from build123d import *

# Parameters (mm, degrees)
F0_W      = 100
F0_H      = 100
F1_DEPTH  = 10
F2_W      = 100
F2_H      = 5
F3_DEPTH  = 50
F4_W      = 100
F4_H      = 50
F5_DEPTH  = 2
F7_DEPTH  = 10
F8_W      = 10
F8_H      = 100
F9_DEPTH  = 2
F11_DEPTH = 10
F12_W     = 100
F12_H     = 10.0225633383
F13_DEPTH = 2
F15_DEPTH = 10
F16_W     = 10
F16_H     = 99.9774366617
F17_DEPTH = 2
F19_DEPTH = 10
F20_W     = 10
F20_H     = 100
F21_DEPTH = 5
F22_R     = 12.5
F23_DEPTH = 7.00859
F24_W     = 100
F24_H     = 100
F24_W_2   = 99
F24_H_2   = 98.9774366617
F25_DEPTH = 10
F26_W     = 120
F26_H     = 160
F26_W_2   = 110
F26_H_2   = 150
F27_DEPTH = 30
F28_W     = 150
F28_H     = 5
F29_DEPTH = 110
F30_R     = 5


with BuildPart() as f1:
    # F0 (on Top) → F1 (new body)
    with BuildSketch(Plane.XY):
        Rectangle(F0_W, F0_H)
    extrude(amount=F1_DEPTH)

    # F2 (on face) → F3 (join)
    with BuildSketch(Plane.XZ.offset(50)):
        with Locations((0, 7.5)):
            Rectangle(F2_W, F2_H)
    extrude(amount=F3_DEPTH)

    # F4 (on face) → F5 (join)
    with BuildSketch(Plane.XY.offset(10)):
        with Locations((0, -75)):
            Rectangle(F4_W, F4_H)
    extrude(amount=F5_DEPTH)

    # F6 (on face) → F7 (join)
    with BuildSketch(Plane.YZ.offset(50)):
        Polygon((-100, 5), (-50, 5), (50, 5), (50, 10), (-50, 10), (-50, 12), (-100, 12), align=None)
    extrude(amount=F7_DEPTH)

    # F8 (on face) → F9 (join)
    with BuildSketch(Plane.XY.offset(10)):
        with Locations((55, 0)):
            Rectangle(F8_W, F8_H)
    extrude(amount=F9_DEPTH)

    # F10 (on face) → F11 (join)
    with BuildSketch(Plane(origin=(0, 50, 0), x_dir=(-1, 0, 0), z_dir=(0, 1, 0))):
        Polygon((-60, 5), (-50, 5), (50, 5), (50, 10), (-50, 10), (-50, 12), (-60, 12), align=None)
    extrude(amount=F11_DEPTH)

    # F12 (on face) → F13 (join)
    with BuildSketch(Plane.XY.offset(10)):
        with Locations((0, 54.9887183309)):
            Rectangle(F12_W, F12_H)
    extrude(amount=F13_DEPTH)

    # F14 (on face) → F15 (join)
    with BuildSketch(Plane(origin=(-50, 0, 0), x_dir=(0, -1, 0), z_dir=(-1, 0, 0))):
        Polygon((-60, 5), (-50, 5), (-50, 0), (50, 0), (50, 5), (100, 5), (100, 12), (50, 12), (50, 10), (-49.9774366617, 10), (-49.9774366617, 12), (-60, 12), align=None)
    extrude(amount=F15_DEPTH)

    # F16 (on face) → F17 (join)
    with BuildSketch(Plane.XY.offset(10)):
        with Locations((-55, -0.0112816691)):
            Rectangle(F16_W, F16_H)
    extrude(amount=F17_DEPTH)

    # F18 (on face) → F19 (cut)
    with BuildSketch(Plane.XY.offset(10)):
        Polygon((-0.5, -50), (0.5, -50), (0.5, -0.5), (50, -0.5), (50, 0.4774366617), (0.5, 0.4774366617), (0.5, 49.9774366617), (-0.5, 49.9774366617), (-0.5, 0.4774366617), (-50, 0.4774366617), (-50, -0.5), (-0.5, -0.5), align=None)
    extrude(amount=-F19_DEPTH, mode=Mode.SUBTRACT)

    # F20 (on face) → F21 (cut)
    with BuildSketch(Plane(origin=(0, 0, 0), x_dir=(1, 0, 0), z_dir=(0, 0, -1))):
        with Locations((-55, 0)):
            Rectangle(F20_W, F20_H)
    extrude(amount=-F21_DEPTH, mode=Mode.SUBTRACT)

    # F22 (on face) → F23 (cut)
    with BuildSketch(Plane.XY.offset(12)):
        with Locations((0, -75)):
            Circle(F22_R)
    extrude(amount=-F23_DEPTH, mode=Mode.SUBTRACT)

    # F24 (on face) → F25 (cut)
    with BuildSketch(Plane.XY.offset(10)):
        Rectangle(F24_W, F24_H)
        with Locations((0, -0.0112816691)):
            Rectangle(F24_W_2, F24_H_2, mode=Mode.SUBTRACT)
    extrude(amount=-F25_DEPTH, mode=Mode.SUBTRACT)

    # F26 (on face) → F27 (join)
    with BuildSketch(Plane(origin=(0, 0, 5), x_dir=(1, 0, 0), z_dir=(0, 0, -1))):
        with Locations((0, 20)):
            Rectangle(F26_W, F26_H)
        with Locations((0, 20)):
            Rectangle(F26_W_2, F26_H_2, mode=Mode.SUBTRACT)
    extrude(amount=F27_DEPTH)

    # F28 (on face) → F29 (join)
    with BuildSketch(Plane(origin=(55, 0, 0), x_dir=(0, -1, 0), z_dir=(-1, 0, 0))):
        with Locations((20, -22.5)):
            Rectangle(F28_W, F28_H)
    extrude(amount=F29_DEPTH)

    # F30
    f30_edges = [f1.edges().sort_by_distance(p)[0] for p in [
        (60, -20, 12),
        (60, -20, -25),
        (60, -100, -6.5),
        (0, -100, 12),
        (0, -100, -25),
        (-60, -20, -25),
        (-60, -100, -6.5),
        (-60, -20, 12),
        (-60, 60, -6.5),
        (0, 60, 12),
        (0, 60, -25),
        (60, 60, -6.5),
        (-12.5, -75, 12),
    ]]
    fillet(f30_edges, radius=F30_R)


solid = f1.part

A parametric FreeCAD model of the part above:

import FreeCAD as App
import Part
import Sketcher
from FreeCAD import Vector


def edges_at(feature, points):
    """Names of the edges that pass closest to the given points."""
    edges = feature.Shape.Edges
    near = lambda p: min(range(len(edges)), key=lambda i: edges[i].distToShape(Part.Vertex(*p))[0])
    return sorted({f"Edge{near(p) + 1}" for p in points})


def add_polygon(sketch, points):
    """Adds a closed chain of lines whose ends are joined by coincident constraints."""
    first, n = sketch.GeometryCount, len(points)
    for a, b in zip(points, points[1:] + points[:1]):
        sketch.addGeometry(Part.LineSegment(App.Vector(*a, 0), App.Vector(*b, 0)), False)
    for i in range(n):
        sketch.addConstraint(Sketcher.Constraint("Coincident", first + i, 2, first + (i + 1) % n, 1))

doc = App.newDocument("Part")
body = doc.addObject("PartDesign::Body", "Body")
body.AllowCompound = True

# Sketch on XY plane
sketch1 = doc.addObject("Sketcher::SketchObject", "Sketch")
body.addObject(sketch1)
sketch1.AttachmentSupport = (doc.XY_Plane, [""])
sketch1.MapMode = "FlatFace"
add_polygon(sketch1, [(-50, 50), (-50, -50), (50, -50), (50, 50)])  # lines 0-3
sketch1.addConstraint([
    Sketcher.Constraint("Vertical", 0),
    Sketcher.Constraint("Horizontal", 1),
    Sketcher.Constraint("Vertical", 2),
    Sketcher.Constraint("Horizontal", 3),
    Sketcher.Constraint("Symmetric", 0, 2, 2, 2, -1, 1),
    Sketcher.Constraint("Equal", 3, 0),
    Sketcher.Constraint("DistanceX", 1, 1, 1, 2, 100.0),
])
pad1 = doc.addObject("PartDesign::Pad", "Pad")
body.addObject(pad1)
pad1.Profile = sketch1
pad1.Length = 10

# Sketch on XZ plane
sketch2 = doc.addObject("Sketcher::SketchObject", "Sketch001")
body.addObject(sketch2)
sketch2.AttachmentSupport = (doc.XZ_Plane, [""])
sketch2.MapMode = "FlatFace"
sketch2.AttachmentOffset = App.Placement(Vector(0, 0, 50), App.Rotation())
add_polygon(sketch2, [(-50, 10), (-50, 5), (50, 5), (50, 10)])  # lines 0-3
sketch2.addConstraint([
    Sketcher.Constraint("Vertical", 0),
    Sketcher.Constraint("Horizontal", 1),
    Sketcher.Constraint("Vertical", 2),
    Sketcher.Constraint("Horizontal", 3),
    Sketcher.Constraint("DistanceX", 1, 1, 1, 2, 100.0),
    Sketcher.Constraint("DistanceY", 0, 2, 0, 1, 5.0),
    Sketcher.Constraint("DistanceX", 0, 2, -1, 1, 50.0),
    Sketcher.Constraint("DistanceY", -1, 1, 0, 2, 5.0),
])
pad2 = doc.addObject("PartDesign::Pad", "Pad001")
body.addObject(pad2)
pad2.Profile = sketch2
pad2.Length = 50

# Sketch on XY plane
sketch3 = doc.addObject("Sketcher::SketchObject", "Sketch002")
body.addObject(sketch3)
sketch3.AttachmentSupport = (doc.XY_Plane, [""])
sketch3.MapMode = "FlatFace"
sketch3.AttachmentOffset = App.Placement(Vector(0, 0, 10), App.Rotation())
add_polygon(sketch3, [(-50, -50), (-50, -100), (50, -100), (50, -50)])  # lines 0-3
sketch3.addConstraint([
    Sketcher.Constraint("Vertical", 0),
    Sketcher.Constraint("Horizontal", 1),
    Sketcher.Constraint("Vertical", 2),
    Sketcher.Constraint("Horizontal", 3),
    Sketcher.Constraint("DistanceX", 1, 1, 1, 2, 100.0),
    Sketcher.Constraint("DistanceY", 0, 2, 0, 1, 50.0),
    Sketcher.Constraint("DistanceX", 0, 2, -1, 1, 50.0),
    Sketcher.Constraint("DistanceY", 0, 2, -1, 1, 100.0),
])
pad3 = doc.addObject("PartDesign::Pad", "Pad002")
body.addObject(pad3)
pad3.Profile = sketch3
pad3.Length = 2

# Sketch on YZ plane
sketch4 = doc.addObject("Sketcher::SketchObject", "Sketch003")
body.addObject(sketch4)
sketch4.AttachmentSupport = (doc.YZ_Plane, [""])
sketch4.MapMode = "FlatFace"
sketch4.AttachmentOffset = App.Placement(Vector(0, 0, 50), App.Rotation())
add_polygon(sketch4, [(-100, 5), (50, 5), (50, 10), (-50, 10), (-50, 12), (-100, 12)])  # lines 0-5
sketch4.addConstraint([
    Sketcher.Constraint("Horizontal", 0),
    Sketcher.Constraint("Vertical", 1),
    Sketcher.Constraint("Horizontal", 2),
    Sketcher.Constraint("Vertical", 3),
    Sketcher.Constraint("Horizontal", 4),
    Sketcher.Constraint("Vertical", 5),
    Sketcher.Constraint("DistanceX", 0, 1, 0, 2, 150.0),
    Sketcher.Constraint("DistanceX", 2, 2, 2, 1, 100.0),
    Sketcher.Constraint("DistanceY", 1, 1, 1, 2, 5.0),
    Sketcher.Constraint("DistanceY", 3, 1, 3, 2, 2.0),
    Sketcher.Constraint("DistanceX", -1, 1, 0, 2, 50.0),
    Sketcher.Constraint("DistanceY", -1, 1, 0, 2, 5.0),
])
pad4 = doc.addObject("PartDesign::Pad", "Pad003")
body.addObject(pad4)
pad4.Profile = sketch4
pad4.Length = 10

# Sketch on XY plane
sketch5 = doc.addObject("Sketcher::SketchObject", "Sketch004")
body.addObject(sketch5)
sketch5.AttachmentSupport = (doc.XY_Plane, [""])
sketch5.MapMode = "FlatFace"
sketch5.AttachmentOffset = App.Placement(Vector(0, 0, 10), App.Rotation())
add_polygon(sketch5, [(50, 50), (50, -50), (60, -50), (60, 50)])  # lines 0-3
sketch5.addConstraint([
    Sketcher.Constraint("Vertical", 0),
    Sketcher.Constraint("Horizontal", 1),
    Sketcher.Constraint("Vertical", 2),
    Sketcher.Constraint("Horizontal", 3),
    Sketcher.Constraint("DistanceX", 1, 1, 1, 2, 10.0),
    Sketcher.Constraint("DistanceY", 0, 2, 0, 1, 100.0),
    Sketcher.Constraint("DistanceX", -1, 1, 0, 2, 50.0),
    Sketcher.Constraint("DistanceY", 0, 2, -1, 1, 50.0),
])
pad5 = doc.addObject("PartDesign::Pad", "Pad004")
body.addObject(pad5)
pad5.Profile = sketch5
pad5.Length = 2

# Sketch on XZ plane
sketch6 = doc.addObject("Sketcher::SketchObject", "Sketch005")
body.addObject(sketch6)
sketch6.AttachmentSupport = (doc.XZ_Plane, [""])
sketch6.MapMode = "FlatFace"
sketch6.AttachmentOffset = App.Placement(Vector(0, 0, -50), App.Rotation())
add_polygon(sketch6, [(60, 5), (-50, 5), (-50, 10), (50, 10), (50, 12), (60, 12)])  # lines 0-5
sketch6.addConstraint([
    Sketcher.Constraint("Horizontal", 0),
    Sketcher.Constraint("Vertical", 1),
    Sketcher.Constraint("Horizontal", 2),
    Sketcher.Constraint("Vertical", 3),
    Sketcher.Constraint("Horizontal", 4),
    Sketcher.Constraint("Vertical", 5),
    Sketcher.Constraint("DistanceX", 0, 2, 0, 1, 110.0),
    Sketcher.Constraint("DistanceX", 2, 1, 2, 2, 100.0),
    Sketcher.Constraint("DistanceY", 1, 1, 1, 2, 5.0),
    Sketcher.Constraint("DistanceY", 3, 1, 3, 2, 2.0),
    Sketcher.Constraint("DistanceX", 0, 2, -1, 1, 50.0),
    Sketcher.Constraint("DistanceY", -1, 1, 0, 2, 5.0),
])
pad6 = doc.addObject("PartDesign::Pad", "Pad005")
body.addObject(pad6)
pad6.Profile = sketch6
pad6.Length = 10
pad6.Reversed = True

# Sketch on XY plane
sketch7 = doc.addObject("Sketcher::SketchObject", "Sketch006")
body.addObject(sketch7)
sketch7.AttachmentSupport = (doc.XY_Plane, [""])
sketch7.MapMode = "FlatFace"
sketch7.AttachmentOffset = App.Placement(Vector(0, 0, 10), App.Rotation())
add_polygon(sketch7, [(-50, 60), (-50, 50), (50, 50), (50, 60)])  # lines 0-3
sketch7.addConstraint([
    Sketcher.Constraint("Vertical", 0),
    Sketcher.Constraint("Horizontal", 1),
    Sketcher.Constraint("Vertical", 2),
    Sketcher.Constraint("Horizontal", 3),
    Sketcher.Constraint("DistanceX", 1, 1, 1, 2, 100.0),
    Sketcher.Constraint("DistanceX", 0, 2, -1, 1, 50.0),
    Sketcher.Constraint("DistanceY", -1, 1, 2, 2, 60.0),
    Sketcher.Constraint("DistanceY", 0, 2, 0, 1, 10.022563),
])
pad7 = doc.addObject("PartDesign::Pad", "Pad006")
body.addObject(pad7)
pad7.Profile = sketch7
pad7.Length = 2

# Sketch on YZ plane
sketch8 = doc.addObject("Sketcher::SketchObject", "Sketch007")
body.addObject(sketch8)
sketch8.AttachmentSupport = (doc.YZ_Plane, [""])
sketch8.MapMode = "FlatFace"
sketch8.AttachmentOffset = App.Placement(Vector(0, 0, -50), App.Rotation())
add_polygon(sketch8, [(60, 5), (50, 5), (50, 0), (-50, 0), (-50, 5), (-100, 5), (-100, 12), (-50, 12), (-50, 10), (50, 10), (50, 12), (60, 12)])  # lines 0-11
sketch8.addConstraint([
    Sketcher.Constraint("Horizontal", 0),
    Sketcher.Constraint("Vertical", 1),
    Sketcher.Constraint("Horizontal", 2),
    Sketcher.Constraint("Vertical", 3),
    Sketcher.Constraint("Horizontal", 4),
    Sketcher.Constraint("Vertical", 5),
    Sketcher.Constraint("Horizontal", 6),
    Sketcher.Constraint("Vertical", 7),
    Sketcher.Constraint("Horizontal", 8),
    Sketcher.Constraint("Vertical", 9),
    Sketcher.Constraint("Horizontal", 10),
    Sketcher.Constraint("Vertical", 11),
    Sketcher.Constraint("Symmetric", 1, 2, 2, 2, -1, 1),
    Sketcher.Constraint("Horizontal", 0, 2, 3, 2),
    Sketcher.Constraint("Horizontal", 6, 2, 9, 2),
    Sketcher.Constraint("Vertical", 3, 2, 6, 2),
    Sketcher.Constraint("DistanceX", 0, 2, 0, 1, 10.0),
    Sketcher.Constraint("DistanceX", 2, 2, 2, 1, 100.0),
    Sketcher.Constraint("DistanceX", 4, 2, 4, 1, 50.0),
    Sketcher.Constraint("DistanceY", 1, 2, 1, 1, 5.0),
    Sketcher.Constraint("DistanceY", 5, 1, 5, 2, 7.0),
    Sketcher.Constraint("DistanceY", 7, 2, 7, 1, 2.0),
    Sketcher.Constraint("DistanceX", 8, 1, 8, 2, 99.977437),
])
pad8 = doc.addObject("PartDesign::Pad", "Pad007")
body.addObject(pad8)
pad8.Profile = sketch8
pad8.Length = 10
pad8.Reversed = True

# Sketch on XY plane
sketch9 = doc.addObject("Sketcher::SketchObject", "Sketch008")
body.addObject(sketch9)
sketch9.AttachmentSupport = (doc.XY_Plane, [""])
sketch9.MapMode = "FlatFace"
sketch9.AttachmentOffset = App.Placement(Vector(0, 0, 10), App.Rotation())
add_polygon(sketch9, [(-60, 50), (-60, -50), (-50, -50), (-50, 50)])  # lines 0-3
sketch9.addConstraint([
    Sketcher.Constraint("Vertical", 0),
    Sketcher.Constraint("Horizontal", 1),
    Sketcher.Constraint("Vertical", 2),
    Sketcher.Constraint("Horizontal", 3),
    Sketcher.Constraint("DistanceX", 1, 1, 1, 2, 10.0),
    Sketcher.Constraint("DistanceX", 0, 2, -1, 1, 60.0),
    Sketcher.Constraint("DistanceY", 0, 2, -1, 1, 50.0),
    Sketcher.Constraint("DistanceY", 0, 2, 0, 1, 99.977437),
])
pad9 = doc.addObject("PartDesign::Pad", "Pad008")
body.addObject(pad9)
pad9.Profile = sketch9
pad9.Length = 2

# Sketch on XY plane
sketch10 = doc.addObject("Sketcher::SketchObject", "Sketch009")
body.addObject(sketch10)
sketch10.AttachmentSupport = (doc.XY_Plane, [""])
sketch10.MapMode = "FlatFace"
sketch10.AttachmentOffset = App.Placement(Vector(0, 0, 10), App.Rotation())
add_polygon(sketch10, [(-0.5, -50), (0.5, -50), (0.5, -0.5), (50, -0.5), (50, 0.5), (0.5, 0.5), (0.5, 50), (-0.5, 50), (-0.5, 0.5), (-50, 0.5), (-50, -0.5), (-0.5, -0.5)])  # lines 0-11
sketch10.addConstraint([
    Sketcher.Constraint("Horizontal", 0),
    Sketcher.Constraint("Vertical", 1),
    Sketcher.Constraint("Horizontal", 2),
    Sketcher.Constraint("Vertical", 3),
    Sketcher.Constraint("Horizontal", 4),
    Sketcher.Constraint("Vertical", 5),
    Sketcher.Constraint("Horizontal", 6),
    Sketcher.Constraint("Vertical", 7),
    Sketcher.Constraint("Horizontal", 8),
    Sketcher.Constraint("Vertical", 9),
    Sketcher.Constraint("Horizontal", 10),
    Sketcher.Constraint("Vertical", 11),
    Sketcher.Constraint("Symmetric", 4, 2, 7, 2, -2),
    Sketcher.Constraint("Symmetric", 2, 2, 9, 2, -2),
    Sketcher.Constraint("Vertical", 1, 2, 4, 2),
    Sketcher.Constraint("Vertical", 7, 2, 10, 2),
    Sketcher.Constraint("Equal", 10, 1),
    Sketcher.Constraint("Equal", 1, 5),
    Sketcher.Constraint("DistanceX", 0, 1, 0, 2, 1.0),
    Sketcher.Constraint("DistanceX", 2, 1, 2, 2, 49.5),
    Sketcher.Constraint("DistanceY", 0, 2, -1, 1, 50.0),
    Sketcher.Constraint("DistanceY", 3, 1, 3, 2, 0.977437),
])
pocket1 = doc.addObject("PartDesign::Pocket", "Pocket")
body.addObject(pocket1)
pocket1.Profile = sketch10
pocket1.Length = 10

# Sketch on XY plane
sketch11 = doc.addObject("Sketcher::SketchObject", "Sketch010")
body.addObject(sketch11)
sketch11.AttachmentSupport = (doc.XY_Plane, [""])
sketch11.MapMode = "FlatFace"
add_polygon(sketch11, [(-60, -50), (-60, 50), (-50, 50), (-50, -50)])  # lines 0-3
sketch11.addConstraint([
    Sketcher.Constraint("Vertical", 0),
    Sketcher.Constraint("Horizontal", 1),
    Sketcher.Constraint("Vertical", 2),
    Sketcher.Constraint("Horizontal", 3),
    Sketcher.Constraint("DistanceX", 1, 1, 1, 2, 10.0),
    Sketcher.Constraint("DistanceY", 0, 1, 0, 2, 100.0),
    Sketcher.Constraint("DistanceX", 0, 2, -1, 1, 60.0),
    Sketcher.Constraint("DistanceY", -1, 1, 0, 2, 50.0),
])
pocket2 = doc.addObject("PartDesign::Pocket", "Pocket001")
body.addObject(pocket2)
pocket2.Profile = sketch11
pocket2.Length = 5
pocket2.Reversed = True

# Sketch on XY plane
sketch12 = doc.addObject("Sketcher::SketchObject", "Sketch011")
body.addObject(sketch12)
sketch12.AttachmentSupport = (doc.XY_Plane, [""])
sketch12.MapMode = "FlatFace"
sketch12.AttachmentOffset = App.Placement(Vector(0, 0, 12), App.Rotation())
sketch12.addGeometry(Part.Circle(Vector(0, -75, 0), Vector(0, 0, 1), 12), False)
sketch12.addConstraint([
    Sketcher.Constraint("PointOnObject", 0, 3, -2),
    Sketcher.Constraint("Diameter", 0, 25.0),
    Sketcher.Constraint("DistanceY", 0, 3, -1, 1, 75.0),
])
pocket3 = doc.addObject("PartDesign::Pocket", "Pocket002")
body.addObject(pocket3)
pocket3.Profile = sketch12
pocket3.Length = 7.00859

# Sketch on XY plane
sketch13 = doc.addObject("Sketcher::SketchObject", "Sketch012")
body.addObject(sketch13)
sketch13.AttachmentSupport = (doc.XY_Plane, [""])
sketch13.MapMode = "FlatFace"
sketch13.AttachmentOffset = App.Placement(Vector(0, 0, 10), App.Rotation())
add_polygon(sketch13, [(-50, 50), (-50, -50), (50, -50), (50, 50)])  # lines 0-3
add_polygon(sketch13, [(50, -50), (-50, -50), (-50, 49), (50, 49)])  # lines 4-7
sketch13.addConstraint([
    Sketcher.Constraint("Vertical", 0),
    Sketcher.Constraint("Horizontal", 1),
    Sketcher.Constraint("Vertical", 2),
    Sketcher.Constraint("Horizontal", 3),
    Sketcher.Constraint("Horizontal", 4),
    Sketcher.Constraint("Vertical", 5),
    Sketcher.Constraint("Horizontal", 6),
    Sketcher.Constraint("Vertical", 7),
    Sketcher.Constraint("Symmetric", 0, 2, 2, 2, -1, 1),
    Sketcher.Constraint("Equal", 3, 0),
    Sketcher.Constraint("DistanceX", 1, 1, 1, 2, 100.0),
    Sketcher.Constraint("DistanceX", 4, 2, 4, 1, 99.0),
    Sketcher.Constraint("DistanceX", 4, 2, -1, 1, 49.5),
    Sketcher.Constraint("DistanceY", 4, 2, -1, 1, 49.5),
    Sketcher.Constraint("DistanceY", 5, 1, 5, 2, 98.977437),
])
pocket4 = doc.addObject("PartDesign::Pocket", "Pocket003")
body.addObject(pocket4)
pocket4.Profile = sketch13
pocket4.Length = 10

# Sketch on XY plane
sketch14 = doc.addObject("Sketcher::SketchObject", "Sketch013")
body.addObject(sketch14)
sketch14.AttachmentSupport = (doc.XY_Plane, [""])
sketch14.MapMode = "FlatFace"
sketch14.AttachmentOffset = App.Placement(Vector(0, 0, 5), App.Rotation())
add_polygon(sketch14, [(-60, -100), (-60, 60), (60, 60), (60, -100)])  # lines 0-3
add_polygon(sketch14, [(55, 55), (-55, 55), (-55, -95), (55, -95)])  # lines 4-7
sketch14.addConstraint([
    Sketcher.Constraint("Vertical", 0),
    Sketcher.Constraint("Horizontal", 1),
    Sketcher.Constraint("Vertical", 2),
    Sketcher.Constraint("Horizontal", 3),
    Sketcher.Constraint("Horizontal", 4),
    Sketcher.Constraint("Vertical", 5),
    Sketcher.Constraint("Horizontal", 6),
    Sketcher.Constraint("Vertical", 7),
    Sketcher.Constraint("DistanceX", 1, 1, 1, 2, 120.0),
    Sketcher.Constraint("DistanceX", 4, 2, 4, 1, 110.0),
    Sketcher.Constraint("DistanceY", 0, 1, 0, 2, 160.0),
    Sketcher.Constraint("DistanceY", 5, 2, 5, 1, 150.0),
    Sketcher.Constraint("DistanceX", 0, 2, -1, 1, 60.0),
    Sketcher.Constraint("DistanceY", -1, 1, 0, 2, 60.0),
    Sketcher.Constraint("DistanceX", 4, 2, -1, 1, 55.0),
    Sketcher.Constraint("DistanceY", -1, 1, 4, 2, 55.0),
])
pad10 = doc.addObject("PartDesign::Pad", "Pad009")
body.addObject(pad10)
pad10.Profile = sketch14
pad10.Length = 30
pad10.Reversed = True

# Sketch on YZ plane
sketch15 = doc.addObject("Sketcher::SketchObject", "Sketch014")
body.addObject(sketch15)
sketch15.AttachmentSupport = (doc.YZ_Plane, [""])
sketch15.MapMode = "FlatFace"
sketch15.AttachmentOffset = App.Placement(Vector(0, 0, 55), App.Rotation())
add_polygon(sketch15, [(55, -20), (55, -25), (-95, -25), (-95, -20)])  # lines 0-3
sketch15.addConstraint([
    Sketcher.Constraint("Vertical", 0),
    Sketcher.Constraint("Horizontal", 1),
    Sketcher.Constraint("Vertical", 2),
    Sketcher.Constraint("Horizontal", 3),
    Sketcher.Constraint("DistanceX", 1, 2, 1, 1, 150.0),
    Sketcher.Constraint("DistanceY", 0, 2, 0, 1, 5.0),
    Sketcher.Constraint("DistanceX", -1, 1, 0, 2, 55.0),
    Sketcher.Constraint("DistanceY", 0, 2, -1, 1, 25.0),
])
pad11 = doc.addObject("PartDesign::Pad", "Pad010")
body.addObject(pad11)
pad11.Profile = sketch15
pad11.Length = 110
pad11.Reversed = True
doc.recompute()

fillet = doc.addObject("PartDesign::Fillet", "Fillet")
body.addObject(fillet)
fillet.Base = (pad11, edges_at(pad11, [
    (60, -20, 12),
    (60, -20, -25),
    (60, -100, -6.5),
    (0, -100, 12),
    (0, -100, -25),
    (-60, -20, -25),
    (-60, -100, -6.5),
    (-60, -20, 12),
    (-60, 60, -6.5),
    (0, 60, 12),
    (0, 60, -25),
    (60, 60, -6.5),
    (-12.5, -75, 12),
]))
fillet.Radius = 5

doc.recompute()
